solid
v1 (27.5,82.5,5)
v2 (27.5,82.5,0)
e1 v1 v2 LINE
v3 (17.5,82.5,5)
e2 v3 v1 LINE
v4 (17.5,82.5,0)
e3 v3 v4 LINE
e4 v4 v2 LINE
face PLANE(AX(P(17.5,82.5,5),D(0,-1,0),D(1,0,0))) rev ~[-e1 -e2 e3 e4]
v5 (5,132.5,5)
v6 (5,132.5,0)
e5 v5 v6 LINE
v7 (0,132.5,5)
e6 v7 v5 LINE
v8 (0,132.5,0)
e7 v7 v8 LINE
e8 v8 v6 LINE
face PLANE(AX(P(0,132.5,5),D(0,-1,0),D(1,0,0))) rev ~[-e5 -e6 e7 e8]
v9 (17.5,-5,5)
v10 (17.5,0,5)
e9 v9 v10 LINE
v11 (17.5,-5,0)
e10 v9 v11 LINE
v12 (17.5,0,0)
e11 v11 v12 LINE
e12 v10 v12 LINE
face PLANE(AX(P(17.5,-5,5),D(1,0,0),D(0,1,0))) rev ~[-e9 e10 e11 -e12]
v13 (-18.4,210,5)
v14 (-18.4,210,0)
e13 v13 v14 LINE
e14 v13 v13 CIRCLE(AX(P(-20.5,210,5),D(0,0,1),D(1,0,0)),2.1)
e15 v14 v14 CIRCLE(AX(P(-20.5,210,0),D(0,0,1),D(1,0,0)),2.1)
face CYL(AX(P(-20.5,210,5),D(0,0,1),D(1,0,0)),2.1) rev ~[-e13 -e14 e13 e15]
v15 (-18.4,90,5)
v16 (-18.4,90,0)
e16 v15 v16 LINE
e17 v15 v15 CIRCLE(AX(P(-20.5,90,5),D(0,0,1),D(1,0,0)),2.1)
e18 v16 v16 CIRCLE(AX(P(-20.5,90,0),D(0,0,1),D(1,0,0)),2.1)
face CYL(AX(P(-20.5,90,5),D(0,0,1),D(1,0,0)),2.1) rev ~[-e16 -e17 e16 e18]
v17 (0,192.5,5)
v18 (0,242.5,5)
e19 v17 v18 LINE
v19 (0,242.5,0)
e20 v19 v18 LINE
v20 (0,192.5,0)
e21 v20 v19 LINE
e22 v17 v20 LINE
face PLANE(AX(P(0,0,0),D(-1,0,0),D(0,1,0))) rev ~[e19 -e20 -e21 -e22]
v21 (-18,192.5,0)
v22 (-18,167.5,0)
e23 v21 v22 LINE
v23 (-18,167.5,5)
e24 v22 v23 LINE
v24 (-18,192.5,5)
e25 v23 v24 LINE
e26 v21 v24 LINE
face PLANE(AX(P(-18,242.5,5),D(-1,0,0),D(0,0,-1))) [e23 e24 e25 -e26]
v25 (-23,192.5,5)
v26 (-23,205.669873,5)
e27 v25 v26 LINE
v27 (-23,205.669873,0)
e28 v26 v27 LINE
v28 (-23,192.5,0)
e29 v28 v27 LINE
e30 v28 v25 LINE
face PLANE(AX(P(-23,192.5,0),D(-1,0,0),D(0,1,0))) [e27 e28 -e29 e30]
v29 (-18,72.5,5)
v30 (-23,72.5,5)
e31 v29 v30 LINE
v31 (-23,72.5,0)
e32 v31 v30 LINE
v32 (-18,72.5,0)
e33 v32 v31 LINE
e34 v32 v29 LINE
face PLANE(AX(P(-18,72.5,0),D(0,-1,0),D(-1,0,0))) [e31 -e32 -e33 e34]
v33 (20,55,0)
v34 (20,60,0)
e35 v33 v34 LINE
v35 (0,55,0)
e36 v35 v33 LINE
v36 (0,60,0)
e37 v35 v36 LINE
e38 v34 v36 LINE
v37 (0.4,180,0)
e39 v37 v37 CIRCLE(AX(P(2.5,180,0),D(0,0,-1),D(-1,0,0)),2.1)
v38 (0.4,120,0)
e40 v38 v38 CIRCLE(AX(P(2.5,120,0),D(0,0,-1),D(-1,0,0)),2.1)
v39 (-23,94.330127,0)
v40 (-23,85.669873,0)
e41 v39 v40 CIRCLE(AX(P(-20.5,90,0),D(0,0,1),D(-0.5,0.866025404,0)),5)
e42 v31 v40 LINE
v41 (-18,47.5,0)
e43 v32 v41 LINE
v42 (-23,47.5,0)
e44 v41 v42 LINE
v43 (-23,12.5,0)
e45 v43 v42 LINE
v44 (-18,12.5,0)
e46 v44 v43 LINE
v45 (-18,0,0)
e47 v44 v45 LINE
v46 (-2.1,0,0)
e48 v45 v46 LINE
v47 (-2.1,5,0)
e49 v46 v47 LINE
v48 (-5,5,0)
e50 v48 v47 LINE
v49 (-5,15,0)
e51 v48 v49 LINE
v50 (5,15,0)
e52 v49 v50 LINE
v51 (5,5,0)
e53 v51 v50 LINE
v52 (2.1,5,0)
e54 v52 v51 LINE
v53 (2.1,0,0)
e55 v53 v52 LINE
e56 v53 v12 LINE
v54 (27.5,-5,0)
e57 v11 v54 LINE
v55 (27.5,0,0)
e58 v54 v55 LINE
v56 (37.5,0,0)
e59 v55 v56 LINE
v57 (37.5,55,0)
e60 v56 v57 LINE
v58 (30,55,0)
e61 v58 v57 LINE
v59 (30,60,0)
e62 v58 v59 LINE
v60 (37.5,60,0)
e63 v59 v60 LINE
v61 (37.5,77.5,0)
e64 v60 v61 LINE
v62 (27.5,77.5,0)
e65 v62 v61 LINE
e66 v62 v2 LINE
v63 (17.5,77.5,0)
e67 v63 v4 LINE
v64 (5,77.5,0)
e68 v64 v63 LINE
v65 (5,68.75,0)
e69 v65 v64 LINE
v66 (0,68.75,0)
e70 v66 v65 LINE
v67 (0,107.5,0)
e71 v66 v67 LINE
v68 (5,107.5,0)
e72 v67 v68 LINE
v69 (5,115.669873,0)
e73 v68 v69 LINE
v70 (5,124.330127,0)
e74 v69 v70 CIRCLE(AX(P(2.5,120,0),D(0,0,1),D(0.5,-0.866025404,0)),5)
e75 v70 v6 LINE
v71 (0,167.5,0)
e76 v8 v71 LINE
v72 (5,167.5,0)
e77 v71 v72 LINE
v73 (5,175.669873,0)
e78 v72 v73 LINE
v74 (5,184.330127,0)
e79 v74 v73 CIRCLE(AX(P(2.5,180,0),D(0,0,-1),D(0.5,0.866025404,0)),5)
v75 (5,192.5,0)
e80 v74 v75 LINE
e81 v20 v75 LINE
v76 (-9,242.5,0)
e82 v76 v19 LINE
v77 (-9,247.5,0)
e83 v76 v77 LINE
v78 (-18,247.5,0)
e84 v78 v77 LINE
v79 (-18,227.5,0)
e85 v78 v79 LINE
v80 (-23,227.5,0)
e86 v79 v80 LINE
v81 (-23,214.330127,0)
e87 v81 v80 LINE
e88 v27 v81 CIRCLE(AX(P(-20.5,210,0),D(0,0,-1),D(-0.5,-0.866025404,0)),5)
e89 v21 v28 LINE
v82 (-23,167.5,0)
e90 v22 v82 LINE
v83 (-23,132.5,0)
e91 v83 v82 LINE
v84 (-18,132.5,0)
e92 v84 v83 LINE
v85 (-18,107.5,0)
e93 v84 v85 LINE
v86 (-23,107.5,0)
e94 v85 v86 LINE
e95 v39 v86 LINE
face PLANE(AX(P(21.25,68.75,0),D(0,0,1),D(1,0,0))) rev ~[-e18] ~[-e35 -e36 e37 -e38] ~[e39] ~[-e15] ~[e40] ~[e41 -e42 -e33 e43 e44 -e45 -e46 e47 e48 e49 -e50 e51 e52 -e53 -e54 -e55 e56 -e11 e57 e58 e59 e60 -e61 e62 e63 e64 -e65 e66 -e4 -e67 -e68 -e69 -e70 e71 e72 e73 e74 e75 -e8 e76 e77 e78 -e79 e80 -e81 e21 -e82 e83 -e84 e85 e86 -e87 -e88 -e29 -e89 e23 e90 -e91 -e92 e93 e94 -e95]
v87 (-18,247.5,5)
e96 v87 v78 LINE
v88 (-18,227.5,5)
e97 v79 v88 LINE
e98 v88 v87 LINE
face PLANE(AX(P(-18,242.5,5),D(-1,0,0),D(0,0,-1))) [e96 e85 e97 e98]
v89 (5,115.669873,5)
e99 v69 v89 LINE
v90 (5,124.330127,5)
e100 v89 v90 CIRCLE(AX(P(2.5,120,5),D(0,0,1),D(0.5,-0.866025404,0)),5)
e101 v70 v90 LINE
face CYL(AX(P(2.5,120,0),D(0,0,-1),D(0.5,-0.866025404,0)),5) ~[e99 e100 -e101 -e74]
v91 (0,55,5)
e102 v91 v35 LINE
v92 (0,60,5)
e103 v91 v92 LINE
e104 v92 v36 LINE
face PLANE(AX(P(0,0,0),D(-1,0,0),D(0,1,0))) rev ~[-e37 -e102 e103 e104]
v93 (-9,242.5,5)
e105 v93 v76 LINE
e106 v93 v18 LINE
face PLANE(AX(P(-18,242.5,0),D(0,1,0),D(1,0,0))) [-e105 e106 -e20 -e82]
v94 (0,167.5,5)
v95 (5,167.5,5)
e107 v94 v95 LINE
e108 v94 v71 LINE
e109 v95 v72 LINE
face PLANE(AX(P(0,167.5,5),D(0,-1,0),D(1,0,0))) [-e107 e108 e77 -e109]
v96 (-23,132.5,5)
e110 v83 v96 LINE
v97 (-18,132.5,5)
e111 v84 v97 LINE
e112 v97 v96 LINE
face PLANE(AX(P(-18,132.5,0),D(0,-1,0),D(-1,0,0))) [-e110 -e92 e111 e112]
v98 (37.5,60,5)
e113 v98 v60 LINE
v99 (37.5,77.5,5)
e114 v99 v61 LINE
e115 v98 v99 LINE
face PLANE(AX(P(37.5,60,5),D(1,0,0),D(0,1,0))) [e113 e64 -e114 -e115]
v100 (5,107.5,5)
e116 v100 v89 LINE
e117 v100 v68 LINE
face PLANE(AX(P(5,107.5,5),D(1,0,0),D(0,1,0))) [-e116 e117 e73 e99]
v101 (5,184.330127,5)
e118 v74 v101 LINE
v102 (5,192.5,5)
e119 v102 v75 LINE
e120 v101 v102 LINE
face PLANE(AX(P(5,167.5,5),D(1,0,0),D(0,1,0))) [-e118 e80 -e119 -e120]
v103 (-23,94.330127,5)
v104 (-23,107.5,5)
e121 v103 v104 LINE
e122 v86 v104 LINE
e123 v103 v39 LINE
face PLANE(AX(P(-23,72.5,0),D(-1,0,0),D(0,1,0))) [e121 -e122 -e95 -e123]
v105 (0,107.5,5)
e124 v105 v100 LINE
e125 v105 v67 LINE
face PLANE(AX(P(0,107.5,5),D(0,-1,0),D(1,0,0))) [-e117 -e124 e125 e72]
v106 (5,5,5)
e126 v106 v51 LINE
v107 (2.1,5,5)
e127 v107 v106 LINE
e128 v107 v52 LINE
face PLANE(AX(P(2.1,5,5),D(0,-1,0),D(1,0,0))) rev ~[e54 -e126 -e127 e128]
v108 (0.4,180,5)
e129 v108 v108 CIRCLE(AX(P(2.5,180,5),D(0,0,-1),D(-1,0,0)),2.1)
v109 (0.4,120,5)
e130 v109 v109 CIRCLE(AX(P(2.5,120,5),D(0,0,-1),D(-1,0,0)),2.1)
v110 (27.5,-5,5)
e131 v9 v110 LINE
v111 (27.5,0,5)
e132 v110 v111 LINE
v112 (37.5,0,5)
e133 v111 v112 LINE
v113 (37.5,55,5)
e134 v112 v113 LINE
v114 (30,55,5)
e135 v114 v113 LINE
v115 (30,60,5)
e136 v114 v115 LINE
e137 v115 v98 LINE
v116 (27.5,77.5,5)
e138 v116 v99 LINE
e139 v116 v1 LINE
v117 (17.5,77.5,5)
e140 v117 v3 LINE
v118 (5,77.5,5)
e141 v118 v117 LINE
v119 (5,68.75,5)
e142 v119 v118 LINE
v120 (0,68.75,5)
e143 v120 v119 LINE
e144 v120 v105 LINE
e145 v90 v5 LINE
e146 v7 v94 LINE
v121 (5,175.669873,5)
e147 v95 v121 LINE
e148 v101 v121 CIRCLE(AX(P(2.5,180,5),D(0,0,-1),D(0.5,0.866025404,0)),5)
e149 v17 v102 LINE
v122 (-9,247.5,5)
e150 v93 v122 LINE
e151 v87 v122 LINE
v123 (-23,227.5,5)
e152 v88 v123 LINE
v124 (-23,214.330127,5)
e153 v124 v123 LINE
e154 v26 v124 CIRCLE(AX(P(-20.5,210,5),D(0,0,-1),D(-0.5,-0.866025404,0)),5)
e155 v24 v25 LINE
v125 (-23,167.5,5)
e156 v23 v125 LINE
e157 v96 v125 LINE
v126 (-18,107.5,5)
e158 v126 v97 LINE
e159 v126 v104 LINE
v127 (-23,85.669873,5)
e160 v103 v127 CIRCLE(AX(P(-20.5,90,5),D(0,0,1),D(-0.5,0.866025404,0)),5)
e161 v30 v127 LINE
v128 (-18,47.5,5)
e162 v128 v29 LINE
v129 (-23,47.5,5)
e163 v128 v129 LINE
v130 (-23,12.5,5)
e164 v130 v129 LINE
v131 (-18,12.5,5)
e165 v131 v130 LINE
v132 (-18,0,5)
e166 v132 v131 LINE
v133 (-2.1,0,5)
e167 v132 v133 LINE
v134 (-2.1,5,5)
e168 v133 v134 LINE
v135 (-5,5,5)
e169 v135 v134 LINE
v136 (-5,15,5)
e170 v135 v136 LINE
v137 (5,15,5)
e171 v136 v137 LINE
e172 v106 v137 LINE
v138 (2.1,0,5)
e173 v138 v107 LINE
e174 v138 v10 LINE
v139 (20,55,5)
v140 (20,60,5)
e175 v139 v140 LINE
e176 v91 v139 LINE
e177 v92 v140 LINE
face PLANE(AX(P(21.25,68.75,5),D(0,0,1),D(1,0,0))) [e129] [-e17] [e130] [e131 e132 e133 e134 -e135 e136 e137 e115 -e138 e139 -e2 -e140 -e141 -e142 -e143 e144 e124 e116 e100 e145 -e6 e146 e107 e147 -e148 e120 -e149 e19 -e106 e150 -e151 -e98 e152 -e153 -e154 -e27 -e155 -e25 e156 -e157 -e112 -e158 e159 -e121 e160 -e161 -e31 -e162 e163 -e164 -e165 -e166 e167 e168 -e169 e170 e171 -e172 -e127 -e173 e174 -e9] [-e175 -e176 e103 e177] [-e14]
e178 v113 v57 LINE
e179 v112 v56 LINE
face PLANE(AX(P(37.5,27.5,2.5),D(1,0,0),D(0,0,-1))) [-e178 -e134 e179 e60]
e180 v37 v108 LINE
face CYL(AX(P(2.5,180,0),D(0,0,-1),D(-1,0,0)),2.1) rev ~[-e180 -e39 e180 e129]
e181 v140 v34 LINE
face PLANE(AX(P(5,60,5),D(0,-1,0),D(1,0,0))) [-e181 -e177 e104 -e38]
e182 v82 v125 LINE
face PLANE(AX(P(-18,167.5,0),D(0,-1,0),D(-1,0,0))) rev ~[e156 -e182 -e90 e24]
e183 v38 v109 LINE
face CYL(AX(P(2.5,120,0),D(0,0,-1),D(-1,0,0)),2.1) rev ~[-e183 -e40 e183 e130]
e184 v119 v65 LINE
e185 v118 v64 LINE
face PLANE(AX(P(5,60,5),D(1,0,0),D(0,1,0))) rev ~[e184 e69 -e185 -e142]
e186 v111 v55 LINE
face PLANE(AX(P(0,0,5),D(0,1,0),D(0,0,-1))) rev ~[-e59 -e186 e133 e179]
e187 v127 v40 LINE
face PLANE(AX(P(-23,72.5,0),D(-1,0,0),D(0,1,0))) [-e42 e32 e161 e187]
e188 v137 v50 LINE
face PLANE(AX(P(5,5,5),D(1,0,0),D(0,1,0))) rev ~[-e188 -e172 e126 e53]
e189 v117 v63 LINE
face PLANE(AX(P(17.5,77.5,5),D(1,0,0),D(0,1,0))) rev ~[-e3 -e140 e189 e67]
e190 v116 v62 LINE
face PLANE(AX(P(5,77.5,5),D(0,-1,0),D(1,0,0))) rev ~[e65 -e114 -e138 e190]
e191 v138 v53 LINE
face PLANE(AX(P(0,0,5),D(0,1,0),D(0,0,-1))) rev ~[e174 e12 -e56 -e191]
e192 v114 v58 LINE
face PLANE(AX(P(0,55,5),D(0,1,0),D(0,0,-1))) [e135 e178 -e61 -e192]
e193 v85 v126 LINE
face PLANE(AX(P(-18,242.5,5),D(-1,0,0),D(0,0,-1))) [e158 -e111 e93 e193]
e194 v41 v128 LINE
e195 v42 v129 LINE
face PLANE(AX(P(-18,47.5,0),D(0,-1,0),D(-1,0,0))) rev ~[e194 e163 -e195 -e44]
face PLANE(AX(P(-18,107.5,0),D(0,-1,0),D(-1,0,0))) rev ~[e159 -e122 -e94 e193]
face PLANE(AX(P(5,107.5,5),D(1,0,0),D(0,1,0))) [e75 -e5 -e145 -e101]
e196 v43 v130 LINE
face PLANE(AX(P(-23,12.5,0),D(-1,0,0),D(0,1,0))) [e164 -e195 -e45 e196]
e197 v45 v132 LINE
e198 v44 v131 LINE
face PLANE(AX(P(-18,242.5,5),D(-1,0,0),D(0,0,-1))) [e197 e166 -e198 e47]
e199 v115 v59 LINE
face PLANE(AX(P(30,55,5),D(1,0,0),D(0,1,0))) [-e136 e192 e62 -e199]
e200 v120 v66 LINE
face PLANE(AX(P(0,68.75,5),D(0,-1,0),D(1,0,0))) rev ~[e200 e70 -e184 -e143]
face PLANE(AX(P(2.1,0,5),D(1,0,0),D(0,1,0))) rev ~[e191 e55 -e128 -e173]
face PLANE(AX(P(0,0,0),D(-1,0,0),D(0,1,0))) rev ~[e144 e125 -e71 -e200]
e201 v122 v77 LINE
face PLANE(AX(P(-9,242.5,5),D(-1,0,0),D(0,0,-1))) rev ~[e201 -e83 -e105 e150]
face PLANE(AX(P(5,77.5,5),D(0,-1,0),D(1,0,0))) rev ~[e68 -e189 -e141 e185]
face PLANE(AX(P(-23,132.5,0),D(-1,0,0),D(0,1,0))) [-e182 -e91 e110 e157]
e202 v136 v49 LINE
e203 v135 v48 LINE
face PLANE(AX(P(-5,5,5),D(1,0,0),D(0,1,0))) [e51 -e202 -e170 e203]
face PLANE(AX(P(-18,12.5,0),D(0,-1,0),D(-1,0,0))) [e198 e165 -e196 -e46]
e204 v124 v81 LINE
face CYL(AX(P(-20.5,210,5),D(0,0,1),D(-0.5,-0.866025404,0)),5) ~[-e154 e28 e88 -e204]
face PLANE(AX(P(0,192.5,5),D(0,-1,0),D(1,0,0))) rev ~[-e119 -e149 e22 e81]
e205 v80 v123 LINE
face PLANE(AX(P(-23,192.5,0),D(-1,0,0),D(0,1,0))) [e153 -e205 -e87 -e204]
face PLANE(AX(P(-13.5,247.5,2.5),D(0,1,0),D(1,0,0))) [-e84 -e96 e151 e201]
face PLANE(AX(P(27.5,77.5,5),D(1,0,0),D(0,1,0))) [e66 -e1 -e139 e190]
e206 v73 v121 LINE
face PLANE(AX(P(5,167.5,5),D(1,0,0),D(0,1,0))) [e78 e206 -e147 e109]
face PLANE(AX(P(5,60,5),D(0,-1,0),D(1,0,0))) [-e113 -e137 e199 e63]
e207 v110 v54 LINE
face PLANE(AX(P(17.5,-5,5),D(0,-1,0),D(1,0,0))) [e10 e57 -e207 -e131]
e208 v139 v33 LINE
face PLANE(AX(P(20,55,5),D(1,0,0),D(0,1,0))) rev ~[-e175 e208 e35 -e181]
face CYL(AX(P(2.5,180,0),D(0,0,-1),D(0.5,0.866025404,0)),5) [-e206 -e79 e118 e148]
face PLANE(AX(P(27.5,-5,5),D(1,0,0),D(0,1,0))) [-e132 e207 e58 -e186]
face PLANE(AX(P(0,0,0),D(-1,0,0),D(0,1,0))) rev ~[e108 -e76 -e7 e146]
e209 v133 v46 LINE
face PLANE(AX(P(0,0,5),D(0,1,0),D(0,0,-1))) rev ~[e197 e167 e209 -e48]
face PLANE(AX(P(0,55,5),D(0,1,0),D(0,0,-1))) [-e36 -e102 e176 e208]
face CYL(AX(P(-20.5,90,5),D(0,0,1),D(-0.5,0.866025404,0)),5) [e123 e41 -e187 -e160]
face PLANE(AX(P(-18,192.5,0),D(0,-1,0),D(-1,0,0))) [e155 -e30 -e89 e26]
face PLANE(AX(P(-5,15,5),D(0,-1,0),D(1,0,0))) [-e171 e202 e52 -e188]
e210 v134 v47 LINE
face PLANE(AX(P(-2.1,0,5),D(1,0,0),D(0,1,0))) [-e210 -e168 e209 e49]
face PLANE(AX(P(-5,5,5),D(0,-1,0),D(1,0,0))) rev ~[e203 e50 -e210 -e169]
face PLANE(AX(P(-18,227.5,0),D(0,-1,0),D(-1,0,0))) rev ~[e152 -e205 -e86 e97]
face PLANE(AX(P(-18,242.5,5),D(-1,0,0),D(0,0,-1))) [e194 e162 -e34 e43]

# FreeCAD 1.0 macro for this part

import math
import FreeCAD as App
import Part
import Sketcher

doc = App.newDocument("Part")
params = doc.addObject("Spreadsheet::Sheet", "Params")
for row, (alias, value) in enumerate([
    ("sketch1_width", "18 mm"),
    ("sketch1_height", "242.5 mm"),
    ("pad1_length", "5 mm"),
    ("sketch2_width", "9 mm"),
    ("sketch2_height", "5 mm"),
    ("pad2_length", "5 mm"),
    ("sketch3_width", "5 mm"),
    ("sketch3_height", "35 mm"),
    ("pad3_length", "5 mm"),
    ("sketch4_width", "5 mm"),
    ("sketch4_height", "25 mm"),
    ("pad4_length", "5 mm"),
    ("sketch5_width", "55 mm"),
    ("sketch5_height", "5 mm"),
    ("pad5_length", "37.5 mm"),
    ("sketch6_width", "10 mm"),
    ("sketch6_height", "5 mm"),
    ("pad6_length", "5 mm"),
    ("sketch7_width", "5 mm"),
    ("sketch7_height", "8.75 mm"),
    ("pad7_length", "5 mm"),
    ("sketch8_width", "10 mm"),
    ("sketch8_height", "5 mm"),
    ("pad8_length", "5 mm"),
    ("sketch9_width", "32.5 mm"),
    ("sketch9_height", "17.5 mm"),
    ("pad9_length", "5 mm"),
    ("sketch10_width", "10 mm"),
    ("sketch10_height", "5 mm"),
    ("pad10_length", "5 mm"),
    ("sketch11_diameter", "4.2 mm"),
    ("pocket1_length", "5 mm"),
    ("sketch12_radius", "5 mm"),
    ("pad11_length", "5 mm"),
    ("sketch13_diameter", "4.2 mm"),
    ("pocket2_length", "5 mm"),
    ("sketch14_radius", "5 mm"),
    ("pad12_length", "5 mm"),
    ("sketch15_width", "10 mm"),
    ("sketch15_height", "5 mm"),
    ("sketch15_width2", "4.2 mm"),
    ("pocket3_length", "10 mm"),
], start=1):
    params.set(f"A{row}", alias)
    params.set(f"B{row}", "=" + value)
    params.setAlias(f"B{row}", alias)

body = doc.addObject("PartDesign::Body", "Body")

# Sketch on XY plane
sketch1 = doc.addObject("Sketcher::SketchObject", "Sketch")
body.addObject(sketch1)
sketch1.AttachmentSupport = (doc.XY_Plane, [""])
sketch1.MapMode = "FlatFace"
sketch1.addGeometry(Part.LineSegment(App.Vector(-18, 242.5, 0), App.Vector(-18, 0, 0)), False)
sketch1.addGeometry(Part.LineSegment(App.Vector(-18, 0, 0), App.Vector(0, 0, 0)), False)
sketch1.addGeometry(Part.LineSegment(App.Vector(0, 0, 0), App.Vector(0, 242.5, 0)), False)
sketch1.addGeometry(Part.LineSegment(App.Vector(0, 242.5, 0), App.Vector(-18, 242.5, 0)), False)
sketch1.addConstraint(Sketcher.Constraint("Coincident", 0, 2, 1, 1))
sketch1.addConstraint(Sketcher.Constraint("Coincident", 1, 2, 2, 1))
sketch1.addConstraint(Sketcher.Constraint("Coincident", 2, 2, 3, 1))
sketch1.addConstraint(Sketcher.Constraint("Coincident", 3, 2, 0, 1))
sketch1.addConstraint(Sketcher.Constraint("Vertical", 0))
sketch1.addConstraint(Sketcher.Constraint("Horizontal", 1))
sketch1.addConstraint(Sketcher.Constraint("Vertical", 2))
sketch1.addConstraint(Sketcher.Constraint("Horizontal", 3))
sketch1.addConstraint(Sketcher.Constraint("Coincident", 1, 2, -1, 1))
sketch1.addConstraint(Sketcher.Constraint("DistanceX", 1, 1, 1, 2, 18.0))
sketch1.addConstraint(Sketcher.Constraint("DistanceY", 0, 2, 0, 1, 242.5))
sketch1.setExpression("Constraints[9]", "Params.sketch1_width")
sketch1.setExpression("Constraints[10]", "Params.sketch1_height")
pad1 = doc.addObject("PartDesign::Pad", "Pad")
body.addObject(pad1)
pad1.Profile = sketch1
pad1.setExpression("Length", "Params.pad1_length")

# Sketch on XZ plane
sketch2 = doc.addObject("Sketcher::SketchObject", "Sketch001")
body.addObject(sketch2)
sketch2.AttachmentSupport = (doc.XZ_Plane, [""])
sketch2.MapMode = "FlatFace"
sketch2.AttachmentOffset = App.Placement(App.Vector(0, 0, -242.5), App.Rotation())
sketch2.addGeometry(Part.LineSegment(App.Vector(-18, 0, 0), App.Vector(-18, 5, 0)), False)
sketch2.addGeometry(Part.LineSegment(App.Vector(-18, 5, 0), App.Vector(-9, 5, 0)), False)
sketch2.addGeometry(Part.LineSegment(App.Vector(-9, 5, 0), App.Vector(-9, 0, 0)), False)
sketch2.addGeometry(Part.LineSegment(App.Vector(-9, 0, 0), App.Vector(-18, 0, 0)), False)
sketch2.addConstraint(Sketcher.Constraint("Coincident", 0, 2, 1, 1))
sketch2.addConstraint(Sketcher.Constraint("Coincident", 1, 2, 2, 1))
sketch2.addConstraint(Sketcher.Constraint("Coincident", 2, 2, 3, 1))
sketch2.addConstraint(Sketcher.Constraint("Coincident", 3, 2, 0, 1))
sketch2.addConstraint(Sketcher.Constraint("Vertical", 0))
sketch2.addConstraint(Sketcher.Constraint("Horizontal", 1))
sketch2.addConstraint(Sketcher.Constraint("Vertical", 2))
sketch2.addConstraint(Sketcher.Constraint("Horizontal", 3))
sketch2.addConstraint(Sketcher.Constraint("PointOnObject", 2, 2, -1))
sketch2.addConstraint(Sketcher.Constraint("DistanceX", 1, 1, 1, 2, 9.0))
sketch2.addConstraint(Sketcher.Constraint("DistanceY", 0, 1, 0, 2, 5.0))
sketch2.addConstraint(Sketcher.Constraint("DistanceX", 0, 2, -1, 1, 18.0))
sketch2.setExpression("Constraints[9]", "Params.sketch2_width")
sketch2.setExpression("Constraints[10]", "Params.sketch2_height")
pad2 = doc.addObject("PartDesign::Pad", "Pad001")
body.addObject(pad2)
pad2.Profile = sketch2
pad2.setExpression("Length", "Params.pad2_length")
pad2.Reversed = True

# Sketch on XY plane
sketch3 = doc.addObject("Sketcher::SketchObject", "Sketch002")
body.addObject(sketch3)
sketch3.AttachmentSupport = (doc.XY_Plane, [""])
sketch3.MapMode = "FlatFace"
sketch3.addGeometry(Part.LineSegment(App.Vector(-18, 227.5, 0), App.Vector(-18, 192.5, 0)), False)
sketch3.addGeometry(Part.LineSegment(App.Vector(-18, 192.5, 0), App.Vector(-23, 192.5, 0)), False)
sketch3.addGeometry(Part.LineSegment(App.Vector(-23, 192.5, 0), App.Vector(-23, 227.5, 0)), False)
sketch3.addGeometry(Part.LineSegment(App.Vector(-23, 227.5, 0), App.Vector(-18, 227.5, 0)), False)
sketch3.addGeometry(Part.LineSegment(App.Vector(-18, 167.5, 0), App.Vector(-18, 132.5, 0)), False)
sketch3.addGeometry(Part.LineSegment(App.Vector(-18, 132.5, 0), App.Vector(-23, 132.5, 0)), False)
sketch3.addGeometry(Part.LineSegment(App.Vector(-23, 132.5, 0), App.Vector(-23, 167.5, 0)), False)
sketch3.addGeometry(Part.LineSegment(App.Vector(-23, 167.5, 0), App.Vector(-18, 167.5, 0)), False)
sketch3.addGeometry(Part.LineSegment(App.Vector(-18, 107.5, 0), App.Vector(-18, 72.5, 0)), False)
sketch3.addGeometry(Part.LineSegment(App.Vector(-18, 72.5, 0), App.Vector(-23, 72.5, 0)), False)
sketch3.addGeometry(Part.LineSegment(App.Vector(-23, 72.5, 0), App.Vector(-23, 107.5, 0)), False)
sketch3.addGeometry(Part.LineSegment(App.Vector(-23, 107.5, 0), App.Vector(-18, 107.5, 0)), False)
sketch3.addGeometry(Part.LineSegment(App.Vector(-18, 47.5, 0), App.Vector(-18, 12.5, 0)), False)
sketch3.addGeometry(Part.LineSegment(App.Vector(-18, 12.5, 0), App.Vector(-23, 12.5, 0)), False)
sketch3.addGeometry(Part.LineSegment(App.Vector(-23, 12.5, 0), App.Vector(-23, 47.5, 0)), False)
sketch3.addGeometry(Part.LineSegment(App.Vector(-23, 47.5, 0), App.Vector(-18, 47.5, 0)), False)
sketch3.addConstraint(Sketcher.Constraint("Coincident", 0, 2, 1, 1))
sketch3.addConstraint(Sketcher.Constraint("Coincident", 1, 2, 2, 1))
sketch3.addConstraint(Sketcher.Constraint("Coincident", 2, 2, 3, 1))
sketch3.addConstraint(Sketcher.Constraint("Coincident", 3, 2, 0, 1))
sketch3.addConstraint(Sketcher.Constraint("Coincident", 4, 2, 5, 1))
sketch3.addConstraint(Sketcher.Constraint("Coincident", 5, 2, 6, 1))
sketch3.addConstraint(Sketcher.Constraint("Coincident", 6, 2, 7, 1))
sketch3.addConstraint(Sketcher.Constraint("Coincident", 7, 2, 4, 1))
sketch3.addConstraint(Sketcher.Constraint("Coincident", 8, 2, 9, 1))
sketch3.addConstraint(Sketcher.Constraint("Coincident", 9, 2, 10, 1))
sketch3.addConstraint(Sketcher.Constraint("Coincident", 10, 2, 11, 1))
sketch3.addConstraint(Sketcher.Constraint("Coincident", 11, 2, 8, 1))
sketch3.addConstraint(Sketcher.Constraint("Coincident", 12, 2, 13, 1))
sketch3.addConstraint(Sketcher.Constraint("Coincident", 13, 2, 14, 1))
sketch3.addConstraint(Sketcher.Constraint("Coincident", 14, 2, 15, 1))
sketch3.addConstraint(Sketcher.Constraint("Coincident", 15, 2, 12, 1))
sketch3.addConstraint(Sketcher.Constraint("Vertical", 0))
sketch3.addConstraint(Sketcher.Constraint("Horizontal", 1))
sketch3.addConstraint(Sketcher.Constraint("Vertical", 2))
sketch3.addConstraint(Sketcher.Constraint("Horizontal", 3))
sketch3.addConstraint(Sketcher.Constraint("Vertical", 4))
sketch3.addConstraint(Sketcher.Constraint("Horizontal", 5))
sketch3.addConstraint(Sketcher.Constraint("Vertical", 6))
sketch3.addConstraint(Sketcher.Constraint("Horizontal", 7))
sketch3.addConstraint(Sketcher.Constraint("Vertical", 8))
sketch3.addConstraint(Sketcher.Constraint("Horizontal", 9))
sketch3.addConstraint(Sketcher.Constraint("Vertical", 10))
sketch3.addConstraint(Sketcher.Constraint("Horizontal", 11))
sketch3.addConstraint(Sketcher.Constraint("Vertical", 12))
sketch3.addConstraint(Sketcher.Constraint("Horizontal", 13))
sketch3.addConstraint(Sketcher.Constraint("Vertical", 14))
sketch3.addConstraint(Sketcher.Constraint("Horizontal", 15))
sketch3.addConstraint(Sketcher.Constraint("Vertical", 3, 2, 4, 2))
sketch3.addConstraint(Sketcher.Constraint("Vertical", 2, 2, 5, 2))
sketch3.addConstraint(Sketcher.Constraint("Vertical", 7, 2, 8, 2))
sketch3.addConstraint(Sketcher.Constraint("Vertical", 6, 2, 9, 2))
sketch3.addConstraint(Sketcher.Constraint("Vertical", 11, 2, 12, 2))
sketch3.addConstraint(Sketcher.Constraint("Vertical", 10, 2, 13, 2))
sketch3.addConstraint(Sketcher.Constraint("Equal", 2, 4))
sketch3.addConstraint(Sketcher.Constraint("Equal", 6, 8))
sketch3.addConstraint(Sketcher.Constraint("Equal", 10, 12))
sketch3.addConstraint(Sketcher.Constraint("DistanceX", 1, 2, 1, 1, 5.0))
sketch3.addConstraint(Sketcher.Constraint("DistanceY", 0, 2, 0, 1, 35.0))
sketch3.addConstraint(Sketcher.Constraint("DistanceX", 0, 2, -1, 1, 18.0))
sketch3.addConstraint(Sketcher.Constraint("DistanceY", 4, 2, 0, 2, 60.0))
sketch3.addConstraint(Sketcher.Constraint("DistanceY", 8, 2, 4, 2, 60.0))
sketch3.addConstraint(Sketcher.Constraint("DistanceY", 12, 2, 8, 2, 60.0))
sketch3.addConstraint(Sketcher.Constraint("DistanceY", -1, 1, 0, 2, 192.5))
sketch3.setExpression("Constraints[41]", "Params.sketch3_width")
sketch3.setExpression("Constraints[42]", "Params.sketch3_height")
pad3 = doc.addObject("PartDesign::Pad", "Pad002")
body.addObject(pad3)
pad3.Profile = sketch3
pad3.setExpression("Length", "Params.pad3_length")

# Sketch on XY plane
sketch4 = doc.addObject("Sketcher::SketchObject", "Sketch003")
body.addObject(sketch4)
sketch4.AttachmentSupport = (doc.XY_Plane, [""])
sketch4.MapMode = "FlatFace"
sketch4.AttachmentOffset = App.Placement(App.Vector(0, 0, 5), App.Rotation())
sketch4.addGeometry(Part.LineSegment(App.Vector(0, 192.5, 0), App.Vector(0, 167.5, 0)), False)
sketch4.addGeometry(Part.LineSegment(App.Vector(0, 167.5, 0), App.Vector(5, 167.5, 0)), False)
sketch4.addGeometry(Part.LineSegment(App.Vector(5, 167.5, 0), App.Vector(5, 192.5, 0)), False)
sketch4.addGeometry(Part.LineSegment(App.Vector(5, 192.5, 0), App.Vector(0, 192.5, 0)), False)
sketch4.addGeometry(Part.LineSegment(App.Vector(0, 132.5, 0), App.Vector(0, 107.5, 0)), False)
sketch4.addGeometry(Part.LineSegment(App.Vector(0, 107.5, 0), App.Vector(5, 107.5, 0)), False)
sketch4.addGeometry(Part.LineSegment(App.Vector(5, 107.5, 0), App.Vector(5, 132.5, 0)), False)
sketch4.addGeometry(Part.LineSegment(App.Vector(5, 132.5, 0), App.Vector(0, 132.5, 0)), False)
sketch4.addConstraint(Sketcher.Constraint("Coincident", 0, 2, 1, 1))
sketch4.addConstraint(Sketcher.Constraint("Coincident", 1, 2, 2, 1))
sketch4.addConstraint(Sketcher.Constraint("Coincident", 2, 2, 3, 1))
sketch4.addConstraint(Sketcher.Constraint("Coincident", 3, 2, 0, 1))
sketch4.addConstraint(Sketcher.Constraint("Coincident", 4, 2, 5, 1))
sketch4.addConstraint(Sketcher.Constraint("Coincident", 5, 2, 6, 1))
sketch4.addConstraint(Sketcher.Constraint("Coincident", 6, 2, 7, 1))
sketch4.addConstraint(Sketcher.Constraint("Coincident", 7, 2, 4, 1))
sketch4.addConstraint(Sketcher.Constraint("Vertical", 0))
sketch4.addConstraint(Sketcher.Constraint("Horizontal", 1))
sketch4.addConstraint(Sketcher.Constraint("Vertical", 2))
sketch4.addConstraint(Sketcher.Constraint("Horizontal", 3))
sketch4.addConstraint(Sketcher.Constraint("Vertical", 4))
sketch4.addConstraint(Sketcher.Constraint("Horizontal", 5))
sketch4.addConstraint(Sketcher.Constraint("Vertical", 6))
sketch4.addConstraint(Sketcher.Constraint("Horizontal", 7))
sketch4.addConstraint(Sketcher.Constraint("PointOnObject", 0, 2, -2))
sketch4.addConstraint(Sketcher.Constraint("PointOnObject", 4, 2, -2))
sketch4.addConstraint(Sketcher.Constraint("Vertical", 2, 2, 5, 2))
sketch4.addConstraint(Sketcher.Constraint("Equal", 2, 4))
sketch4.addConstraint(Sketcher.Constraint("DistanceX", 1, 1, 1, 2, 5.0))
sketch4.addConstraint(Sketcher.Constraint("DistanceY", 0, 2, 0, 1, 25.0))
sketch4.addConstraint(Sketcher.Constraint("DistanceY", 4, 2, 0, 2, 60.0))
sketch4.addConstraint(Sketcher.Constraint("DistanceY", -1, 1, 0, 2, 167.5))
sketch4.setExpression("Constraints[20]", "Params.sketch4_width")
sketch4.setExpression("Constraints[21]", "Params.sketch4_height")
pad4 = doc.addObject("PartDesign::Pad", "Pad003")
body.addObject(pad4)
pad4.Profile = sketch4
pad4.setExpression("Length", "Params.pad4_length")
pad4.Reversed = True

# Sketch on YZ plane
sketch5 = doc.addObject("Sketcher::SketchObject", "Sketch004")
body.addObject(sketch5)
sketch5.AttachmentSupport = (doc.YZ_Plane, [""])
sketch5.MapMode = "FlatFace"
sketch5.addGeometry(Part.LineSegment(App.Vector(55, 5, 0), App.Vector(0, 5, 0)), False)
sketch5.addGeometry(Part.LineSegment(App.Vector(0, 5, 0), App.Vector(0, 0, 0)), False)
sketch5.addGeometry(Part.LineSegment(App.Vector(0, 0, 0), App.Vector(55, 0, 0)), False)
sketch5.addGeometry(Part.LineSegment(App.Vector(55, 0, 0), App.Vector(55, 5, 0)), False)
sketch5.addConstraint(Sketcher.Constraint("Coincident", 0, 2, 1, 1))
sketch5.addConstraint(Sketcher.Constraint("Coincident", 1, 2, 2, 1))
sketch5.addConstraint(Sketcher.Constraint("Coincident", 2, 2, 3, 1))
sketch5.addConstraint(Sketcher.Constraint("Coincident", 3, 2, 0, 1))
sketch5.addConstraint(Sketcher.Constraint("Horizontal", 0))
sketch5.addConstraint(Sketcher.Constraint("Vertical", 1))
sketch5.addConstraint(Sketcher.Constraint("Horizontal", 2))
sketch5.addConstraint(Sketcher.Constraint("Vertical", 3))
sketch5.addConstraint(Sketcher.Constraint("Coincident", 1, 2, -1, 1))
sketch5.addConstraint(Sketcher.Constraint("DistanceX", 0, 2, 0, 1, 55.0))
sketch5.addConstraint(Sketcher.Constraint("DistanceY", 1, 2, 1, 1, 5.0))
sketch5.setExpression("Constraints[9]", "Params.sketch5_width")
sketch5.setExpression("Constraints[10]", "Params.sketch5_height")
pad5 = doc.addObject("PartDesign::Pad", "Pad004")
body.addObject(pad5)
pad5.Profile = sketch5
pad5.setExpression("Length", "Params.pad5_length")

# Sketch on XY plane
sketch6 = doc.addObject("Sketcher::SketchObject", "Sketch005")
body.addObject(sketch6)
sketch6.AttachmentSupport = (doc.XY_Plane, [""])
sketch6.MapMode = "FlatFace"
sketch6.AttachmentOffset = App.Placement(App.Vector(0, 0, 5), App.Rotation())
sketch6.addGeometry(Part.LineSegment(App.Vector(20, 60, 0), App.Vector(20, 55, 0)), False)
sketch6.addGeometry(Part.LineSegment(App.Vector(20, 55, 0), App.Vector(30, 55, 0)), False)
sketch6.addGeometry(Part.LineSegment(App.Vector(30, 55, 0), App.Vector(30, 60, 0)), False)
sketch6.addGeometry(Part.LineSegment(App.Vector(30, 60, 0), App.Vector(20, 60, 0)), False)
sketch6.addConstraint(Sketcher.Constraint("Coincident", 0, 2, 1, 1))
sketch6.addConstraint(Sketcher.Constraint("Coincident", 1, 2, 2, 1))
sketch6.addConstraint(Sketcher.Constraint("Coincident", 2, 2, 3, 1))
sketch6.addConstraint(Sketcher.Constraint("Coincident", 3, 2, 0, 1))
sketch6.addConstraint(Sketcher.Constraint("Vertical", 0))
sketch6.addConstraint(Sketcher.Constraint("Horizontal", 1))
sketch6.addConstraint(Sketcher.Constraint("Vertical", 2))
sketch6.addConstraint(Sketcher.Constraint("Horizontal", 3))
sketch6.addConstraint(Sketcher.Constraint("DistanceX", 1, 1, 1, 2, 10.0))
sketch6.addConstraint(Sketcher.Constraint("DistanceY", 0, 2, 0, 1, 5.0))
sketch6.addConstraint(Sketcher.Constraint("DistanceX", -1, 1, 0, 2, 20.0))
sketch6.addConstraint(Sketcher.Constraint("DistanceY", -1, 1, 0, 2, 55.0))
sketch6.setExpression("Constraints[8]", "Params.sketch6_width")
sketch6.setExpression("Constraints[9]", "Params.sketch6_height")
pad6 = doc.addObject("PartDesign::Pad", "Pad005")
body.addObject(pad6)
pad6.Profile = sketch6
pad6.setExpression("Length", "Params.pad6_length")
pad6.Reversed = True

# Sketch on XY plane
sketch7 = doc.addObject("Sketcher::SketchObject", "Sketch006")
body.addObject(sketch7)
sketch7.AttachmentSupport = (doc.XY_Plane, [""])
sketch7.MapMode = "FlatFace"
sketch7.AttachmentOffset = App.Placement(App.Vector(0, 0, 5), App.Rotation())
sketch7.addGeometry(Part.LineSegment(App.Vector(0, 68.75, 0), App.Vector(0, 60, 0)), False)
sketch7.addGeometry(Part.LineSegment(App.Vector(0, 60, 0), App.Vector(5, 60, 0)), False)
sketch7.addGeometry(Part.LineSegment(App.Vector(5, 60, 0), App.Vector(5, 68.75, 0)), False)
sketch7.addGeometry(Part.LineSegment(App.Vector(5, 68.75, 0), App.Vector(0, 68.75, 0)), False)
sketch7.addConstraint(Sketcher.Constraint("Coincident", 0, 2, 1, 1))
sketch7.addConstraint(Sketcher.Constraint("Coincident", 1, 2, 2, 1))
sketch7.addConstraint(Sketcher.Constraint("Coincident", 2, 2, 3, 1))
sketch7.addConstraint(Sketcher.Constraint("Coincident", 3, 2, 0, 1))
sketch7.addConstraint(Sketcher.Constraint("Vertical", 0))
sketch7.addConstraint(Sketcher.Constraint("Horizontal", 1))
sketch7.addConstraint(Sketcher.Constraint("Vertical", 2))
sketch7.addConstraint(Sketcher.Constraint("Horizontal", 3))
sketch7.addConstraint(Sketcher.Constraint("PointOnObject", 0, 2, -2))
sketch7.addConstraint(Sketcher.Constraint("DistanceX", 1, 1, 1, 2, 5.0))
sketch7.addConstraint(Sketcher.Constraint("DistanceY", -1, 1, 0, 2, 60.0))
sketch7.addConstraint(Sketcher.Constraint("DistanceY", 0, 2, 0, 1, 8.75))
sketch7.setExpression("Constraints[9]", "Params.sketch7_width")
sketch7.setExpression("Constraints[11]", "Params.sketch7_height")
pad7 = doc.addObject("PartDesign::Pad", "Pad006")
body.addObject(pad7)
pad7.Profile = sketch7
pad7.setExpression("Length", "Params.pad7_length")
pad7.Reversed = True

# Sketch on XY plane
sketch8 = doc.addObject("Sketcher::SketchObject", "Sketch007")
body.addObject(sketch8)
sketch8.AttachmentSupport = (doc.XY_Plane, [""])
sketch8.MapMode = "FlatFace"
sketch8.AttachmentOffset = App.Placement(App.Vector(0, 0, 5), App.Rotation())
sketch8.addGeometry(Part.LineSegment(App.Vector(17.5, 0, 0), App.Vector(17.5, -5, 0)), False)
sketch8.addGeometry(Part.LineSegment(App.Vector(17.5, -5, 0), App.Vector(27.5, -5, 0)), False)
sketch8.addGeometry(Part.LineSegment(App.Vector(27.5, -5, 0), App.Vector(27.5, 0, 0)), False)
sketch8.addGeometry(Part.LineSegment(App.Vector(27.5, 0, 0), App.Vector(17.5, 0, 0)), False)
sketch8.addConstraint(Sketcher.Constraint("Coincident", 0, 2, 1, 1))
sketch8.addConstraint(Sketcher.Constraint("Coincident", 1, 2, 2, 1))
sketch8.addConstraint(Sketcher.Constraint("Coincident", 2, 2, 3, 1))
sketch8.addConstraint(Sketcher.Constraint("Coincident", 3, 2, 0, 1))
sketch8.addConstraint(Sketcher.Constraint("Vertical", 0))
sketch8.addConstraint(Sketcher.Constraint("Horizontal", 1))
sketch8.addConstraint(Sketcher.Constraint("Vertical", 2))
sketch8.addConstraint(Sketcher.Constraint("Horizontal", 3))
sketch8.addConstraint(Sketcher.Constraint("PointOnObject", 2, 2, -1))
sketch8.addConstraint(Sketcher.Constraint("DistanceX", 1, 1, 1, 2, 10.0))
sketch8.addConstraint(Sketcher.Constraint("DistanceY", 0, 2, 0, 1, 5.0))
sketch8.addConstraint(Sketcher.Constraint("DistanceX", -1, 1, 0, 2, 17.5))
sketch8.setExpression("Constraints[9]", "Params.sketch8_width")
sketch8.setExpression("Constraints[10]", "Params.sketch8_height")
pad8 = doc.addObject("PartDesign::Pad", "Pad007")
body.addObject(pad8)
pad8.Profile = sketch8
pad8.setExpression("Length", "Params.pad8_length")
pad8.Reversed = True

# Sketch on XY plane
sketch9 = doc.addObject("Sketcher::SketchObject", "Sketch008")
body.addObject(sketch9)
sketch9.AttachmentSupport = (doc.XY_Plane, [""])
sketch9.MapMode = "FlatFace"
sketch9.AttachmentOffset = App.Placement(App.Vector(0, 0, 5), App.Rotation())
sketch9.addGeometry(Part.LineSegment(App.Vector(5, 77.5, 0), App.Vector(5, 60, 0)), False)
sketch9.addGeometry(Part.LineSegment(App.Vector(5, 60, 0), App.Vector(37.5, 60, 0)), False)
sketch9.addGeometry(Part.LineSegment(App.Vector(37.5, 60, 0), App.Vector(37.5, 77.5, 0)), False)
sketch9.addGeometry(Part.LineSegment(App.Vector(37.5, 77.5, 0), App.Vector(5, 77.5, 0)), False)
sketch9.addConstraint(Sketcher.Constraint("Coincident", 0, 2, 1, 1))
sketch9.addConstraint(Sketcher.Constraint("Coincident", 1, 2, 2, 1))
sketch9.addConstraint(Sketcher.Constraint("Coincident", 2, 2, 3, 1))
sketch9.addConstraint(Sketcher.Constraint("Coincident", 3, 2, 0, 1))
sketch9.addConstraint(Sketcher.Constraint("Vertical", 0))
sketch9.addConstraint(Sketcher.Constraint("Horizontal", 1))
sketch9.addConstraint(Sketcher.Constraint("Vertical", 2))
sketch9.addConstraint(Sketcher.Constraint("Horizontal", 3))
sketch9.addConstraint(Sketcher.Constraint("DistanceX", 1, 1, 1, 2, 32.5))
sketch9.addConstraint(Sketcher.Constraint("DistanceY", 0, 2, 0, 1, 17.5))
sketch9.addConstraint(Sketcher.Constraint("DistanceX", -1, 1, 0, 2, 5.0))
sketch9.addConstraint(Sketcher.Constraint("DistanceY", -1, 1, 0, 2, 60.0))
sketch9.setExpression("Constraints[8]", "Params.sketch9_width")
sketch9.setExpression("Constraints[9]", "Params.sketch9_height")
pad9 = doc.addObject("PartDesign::Pad", "Pad008")
body.addObject(pad9)
pad9.Profile = sketch9
pad9.setExpression("Length", "Params.pad9_length")
pad9.Reversed = True

# Sketch on XY plane
sketch10 = doc.addObject("Sketcher::SketchObject", "Sketch009")
body.addObject(sketch10)
sketch10.AttachmentSupport = (doc.XY_Plane, [""])
sketch10.MapMode = "FlatFace"
sketch10.AttachmentOffset = App.Placement(App.Vector(0, 0, 5), App.Rotation())
sketch10.addGeometry(Part.LineSegment(App.Vector(17.5, 82.5, 0), App.Vector(17.5, 77.5, 0)), False)
sketch10.addGeometry(Part.LineSegment(App.Vector(17.5, 77.5, 0), App.Vector(27.5, 77.5, 0)), False)
sketch10.addGeometry(Part.LineSegment(App.Vector(27.5, 77.5, 0), App.Vector(27.5, 82.5, 0)), False)
sketch10.addGeometry(Part.LineSegment(App.Vector(27.5, 82.5, 0), App.Vector(17.5, 82.5, 0)), False)
sketch10.addConstraint(Sketcher.Constraint("Coincident", 0, 2, 1, 1))
sketch10.addConstraint(Sketcher.Constraint("Coincident", 1, 2, 2, 1))
sketch10.addConstraint(Sketcher.Constraint("Coincident", 2, 2, 3, 1))
sketch10.addConstraint(Sketcher.Constraint("Coincident", 3, 2, 0, 1))
sketch10.addConstraint(Sketcher.Constraint("Vertical", 0))
sketch10.addConstraint(Sketcher.Constraint("Horizontal", 1))
sketch10.addConstraint(Sketcher.Constraint("Vertical", 2))
sketch10.addConstraint(Sketcher.Constraint("Horizontal", 3))
sketch10.addConstraint(Sketcher.Constraint("DistanceX", 1, 1, 1, 2, 10.0))
sketch10.addConstraint(Sketcher.Constraint("DistanceY", 0, 2, 0, 1, 5.0))
sketch10.addConstraint(Sketcher.Constraint("DistanceX", -1, 1, 0, 2, 17.5))
sketch10.addConstraint(Sketcher.Constraint("DistanceY", -1, 1, 0, 2, 77.5))
sketch10.setExpression("Constraints[8]", "Params.sketch10_width")
sketch10.setExpression("Constraints[9]", "Params.sketch10_height")
pad10 = doc.addObject("PartDesign::Pad", "Pad009")
body.addObject(pad10)
pad10.Profile = sketch10
pad10.setExpression("Length", "Params.pad10_length")
pad10.Reversed = True

# Sketch on XY plane
sketch11 = doc.addObject("Sketcher::SketchObject", "Sketch010")
body.addObject(sketch11)
sketch11.AttachmentSupport = (doc.XY_Plane, [""])
sketch11.MapMode = "FlatFace"
sketch11.addGeometry(Part.Circle(App.Vector(2.5, 180, 0), App.Vector(0, 0, 1), 2.1), False)
sketch11.addGeometry(Part.Circle(App.Vector(2.5, 120, 0), App.Vector(0, 0, 1), 2.1), False)
sketch11.addConstraint(Sketcher.Constraint("Equal", 0, 1))
sketch11.addConstraint(Sketcher.Constraint("Vertical", 0, 3, 1, 3))
sketch11.addConstraint(Sketcher.Constraint("Diameter", 0, 4.2))
sketch11.addConstraint(Sketcher.Constraint("DistanceY", -1, 1, 0, 3, 180.0))
sketch11.addConstraint(Sketcher.Constraint("DistanceY", -1, 1, 1, 3, 120.0))
sketch11.addConstraint(Sketcher.Constraint("DistanceX", -1, 1, 0, 3, 2.5))
sketch11.setExpression("Constraints[2]", "Params.sketch11_diameter")
pocket1 = doc.addObject("PartDesign::Pocket", "Pocket")
body.addObject(pocket1)
pocket1.Profile = sketch11
pocket1.setExpression("Length", "Params.pocket1_length")
pocket1.Reversed = True

# Sketch on XY plane
sketch12 = doc.addObject("Sketcher::SketchObject", "Sketch011")
body.addObject(sketch12)
sketch12.AttachmentSupport = (doc.XY_Plane, [""])
sketch12.MapMode = "FlatFace"
sketch12.addGeometry(Part.LineSegment(App.Vector(5, 175.669873, 0), App.Vector(5, 184.330127, 0)), False)
sketch12.addGeometry(Part.ArcOfCircle(Part.Circle(App.Vector(2.5, 180, 0), App.Vector(0, 0, 1), 5), math.radians(-60), math.radians(60)), False)
sketch12.addGeometry(Part.LineSegment(App.Vector(5, 115.669873, 0), App.Vector(5, 124.330127, 0)), False)
sketch12.addGeometry(Part.ArcOfCircle(Part.Circle(App.Vector(2.5, 120, 0), App.Vector(0, 0, 1), 5), math.radians(-60), math.radians(60)), False)
sketch12.addConstraint(Sketcher.Constraint("Coincident", 0, 1, 1, 1))
sketch12.addConstraint(Sketcher.Constraint("Coincident", 1, 2, 0, 2))
sketch12.addConstraint(Sketcher.Constraint("Coincident", 2, 1, 3, 1))
sketch12.addConstraint(Sketcher.Constraint("Coincident", 3, 2, 2, 2))
sketch12.addConstraint(Sketcher.Constraint("Vertical", 0))
sketch12.addConstraint(Sketcher.Constraint("Vertical", 2))
sketch12.addConstraint(Sketcher.Constraint("Equal", 1, 3))
sketch12.addConstraint(Sketcher.Constraint("Vertical", 1, 3, 3, 3))
sketch12.addConstraint(Sketcher.Constraint("Vertical", 1, 2, 2, 1))
sketch12.addConstraint(Sketcher.Constraint("Radius", 1, 5.0))
sketch12.addConstraint(Sketcher.Constraint("DistanceY", -1, 1, 1, 3, 180.0))
sketch12.addConstraint(Sketcher.Constraint("DistanceY", -1, 1, 3, 3, 120.0))
sketch12.addConstraint(Sketcher.Constraint("DistanceX", -1, 1, 0, 1, 5.0))
sketch12.addConstraint(Sketcher.Constraint("DistanceX", -1, 1, 1, 3, 2.5))
sketch12.setExpression("Constraints[9]", "Params.sketch12_radius")
pad11 = doc.addObject("PartDesign::Pad", "Pad010")
body.addObject(pad11)
pad11.Profile = sketch12
pad11.setExpression("Length", "Params.pad11_length")

# Sketch on XY plane
sketch13 = doc.addObject("Sketcher::SketchObject", "Sketch012")
body.addObject(sketch13)
sketch13.AttachmentSupport = (doc.XY_Plane, [""])
sketch13.MapMode = "FlatFace"
sketch13.AttachmentOffset = App.Placement(App.Vector(0, 0, 5), App.Rotation())
sketch13.addGeometry(Part.Circle(App.Vector(-20.5, 210, 0), App.Vector(0, 0, 1), 2.1), False)
sketch13.addGeometry(Part.Circle(App.Vector(-20.5, 90, 0), App.Vector(0, 0, 1), 2.1), False)
sketch13.addConstraint(Sketcher.Constraint("Equal", 0, 1))
sketch13.addConstraint(Sketcher.Constraint("Vertical", 0, 3, 1, 3))
sketch13.addConstraint(Sketcher.Constraint("Diameter", 0, 4.2))
sketch13.addConstraint(Sketcher.Constraint("DistanceY", -1, 1, 0, 3, 210.0))
sketch13.addConstraint(Sketcher.Constraint("DistanceY", -1, 1, 1, 3, 90.0))
sketch13.addConstraint(Sketcher.Constraint("DistanceX", 0, 3, -1, 1, 20.5))
sketch13.setExpression("Constraints[2]", "Params.sketch13_diameter")
pocket2 = doc.addObject("PartDesign::Pocket", "Pocket001")
body.addObject(pocket2)
pocket2.Profile = sketch13
pocket2.setExpression("Length", "Params.pocket2_length")

# Sketch on XY plane
sketch14 = doc.addObject("Sketcher::SketchObject", "Sketch013")
body.addObject(sketch14)
sketch14.AttachmentSupport = (doc.XY_Plane, [""])
sketch14.MapMode = "FlatFace"
sketch14.AttachmentOffset = App.Placement(App.Vector(0, 0, 5), App.Rotation())
sketch14.addGeometry(Part.LineSegment(App.Vector(-23, 205.669873, 0), App.Vector(-23, 214.330127, 0)), False)
sketch14.addGeometry(Part.ArcOfCircle(Part.Circle(App.Vector(-20.5, 210, 0), App.Vector(0, 0, 1), 5), math.radians(120), math.radians(240)), False)
sketch14.addGeometry(Part.LineSegment(App.Vector(-23, 85.669873, 0), App.Vector(-23, 94.330127, 0)), False)
sketch14.addGeometry(Part.ArcOfCircle(Part.Circle(App.Vector(-20.5, 90, 0), App.Vector(0, 0, 1), 5), math.radians(120), math.radians(240)), False)
sketch14.addConstraint(Sketcher.Constraint("Coincident", 0, 1, 1, 2))
sketch14.addConstraint(Sketcher.Constraint("Coincident", 1, 1, 0, 2))
sketch14.addConstraint(Sketcher.Constraint("Coincident", 2, 1, 3, 2))
sketch14.addConstraint(Sketcher.Constraint("Coincident", 3, 1, 2, 2))
sketch14.addConstraint(Sketcher.Constraint("Vertical", 0))
sketch14.addConstraint(Sketcher.Constraint("Vertical", 2))
sketch14.addConstraint(Sketcher.Constraint("Equal", 1, 3))
sketch14.addConstraint(Sketcher.Constraint("Vertical", 1, 3, 3, 3))
sketch14.addConstraint(Sketcher.Constraint("Vertical", 1, 1, 2, 1))
sketch14.addConstraint(Sketcher.Constraint("Radius", 1, 5.0))
sketch14.addConstraint(Sketcher.Constraint("DistanceY", -1, 1, 1, 3, 210.0))
sketch14.addConstraint(Sketcher.Constraint("DistanceY", -1, 1, 3, 3, 90.0))
sketch14.addConstraint(Sketcher.Constraint("DistanceX", 0, 1, -1, 1, 23.0))
sketch14.addConstraint(Sketcher.Constraint("DistanceX", 1, 3, -1, 1, 20.5))
sketch14.setExpression("Constraints[9]", "Params.sketch14_radius")
pad12 = doc.addObject("PartDesign::Pad", "Pad011")
body.addObject(pad12)
pad12.Profile = sketch14
pad12.setExpression("Length", "Params.pad12_length")
pad12.Reversed = True

# Sketch on XY plane
sketch15 = doc.addObject("Sketcher::SketchObject", "Sketch014")
body.addObject(sketch15)
sketch15.AttachmentSupport = (doc.XY_Plane, [""])
sketch15.MapMode = "FlatFace"
sketch15.AttachmentOffset = App.Placement(App.Vector(0, 0, 5), App.Rotation())
sketch15.addGeometry(Part.LineSegment(App.Vector(-2.1, 5, 0), App.Vector(-2.1, 0, 0)), False)
sketch15.addGeometry(Part.LineSegment(App.Vector(-2.1, 0, 0), App.Vector(2.1, 0, 0)), False)
sketch15.addGeometry(Part.LineSegment(App.Vector(2.1, 0, 0), App.Vector(2.1, 5, 0)), False)
sketch15.addGeometry(Part.LineSegment(App.Vector(2.1, 5, 0), App.Vector(5, 5, 0)), False)
sketch15.addGeometry(Part.LineSegment(App.Vector(5, 5, 0), App.Vector(5, 15, 0)), False)
sketch15.addGeometry(Part.LineSegment(App.Vector(5, 15, 0), App.Vector(-5, 15, 0)), False)
sketch15.addGeometry(Part.LineSegment(App.Vector(-5, 15, 0), App.Vector(-5, 5, 0)), False)
sketch15.addGeometry(Part.LineSegment(App.Vector(-5, 5, 0), App.Vector(-2.1, 5, 0)), False)
sketch15.addConstraint(Sketcher.Constraint("Coincident", 0, 2, 1, 1))
sketch15.addConstraint(Sketcher.Constraint("Coincident", 1, 2, 2, 1))
sketch15.addConstraint(Sketcher.Constraint("Coincident", 2, 2, 3, 1))
sketch15.addConstraint(Sketcher.Constraint("Coincident", 3, 2, 4, 1))
sketch15.addConstraint(Sketcher.Constraint("Coincident", 4, 2, 5, 1))
sketch15.addConstraint(Sketcher.Constraint("Coincident", 5, 2, 6, 1))
sketch15.addConstraint(Sketcher.Constraint("Coincident", 6, 2, 7, 1))
sketch15.addConstraint(Sketcher.Constraint("Coincident", 7, 2, 0, 1))
sketch15.addConstraint(Sketcher.Constraint("Vertical", 0))
sketch15.addConstraint(Sketcher.Constraint("Horizontal", 1))
sketch15.addConstraint(Sketcher.Constraint("Vertical", 2))
sketch15.addConstraint(Sketcher.Constraint("Horizontal", 3))
sketch15.addConstraint(Sketcher.Constraint("Vertical", 4))
sketch15.addConstraint(Sketcher.Constraint("Horizontal", 5))
sketch15.addConstraint(Sketcher.Constraint("Vertical", 6))
sketch15.addConstraint(Sketcher.Constraint("Horizontal", 7))
sketch15.addConstraint(Sketcher.Constraint("Symmetric", 0, 2, 1, 2, -1, 1))
sketch15.addConstraint(Sketcher.Constraint("Symmetric", 3, 2, 6, 2, -2))
sketch15.addConstraint(Sketcher.Constraint("Equal", 5, 4))
sketch15.addConstraint(Sketcher.Constraint("DistanceX", 5, 2, 5, 1, 10.0))
sketch15.addConstraint(Sketcher.Constraint("DistanceY", 0, 2, 0, 1, 5.0))
sketch15.addConstraint(Sketcher.Constraint("DistanceX", 1, 1, 1, 2, 4.2))
sketch15.setExpression("Constraints[19]", "Params.sketch15_width")
sketch15.setExpression("Constraints[20]", "Params.sketch15_height")
sketch15.setExpression("Constraints[21]", "Params.sketch15_width2")
pocket3 = doc.addObject("PartDesign::Pocket", "Pocket002")
body.addObject(pocket3)
pocket3.Profile = sketch15
pocket3.setExpression("Length", "Params.pocket3_length")

doc.recompute()
